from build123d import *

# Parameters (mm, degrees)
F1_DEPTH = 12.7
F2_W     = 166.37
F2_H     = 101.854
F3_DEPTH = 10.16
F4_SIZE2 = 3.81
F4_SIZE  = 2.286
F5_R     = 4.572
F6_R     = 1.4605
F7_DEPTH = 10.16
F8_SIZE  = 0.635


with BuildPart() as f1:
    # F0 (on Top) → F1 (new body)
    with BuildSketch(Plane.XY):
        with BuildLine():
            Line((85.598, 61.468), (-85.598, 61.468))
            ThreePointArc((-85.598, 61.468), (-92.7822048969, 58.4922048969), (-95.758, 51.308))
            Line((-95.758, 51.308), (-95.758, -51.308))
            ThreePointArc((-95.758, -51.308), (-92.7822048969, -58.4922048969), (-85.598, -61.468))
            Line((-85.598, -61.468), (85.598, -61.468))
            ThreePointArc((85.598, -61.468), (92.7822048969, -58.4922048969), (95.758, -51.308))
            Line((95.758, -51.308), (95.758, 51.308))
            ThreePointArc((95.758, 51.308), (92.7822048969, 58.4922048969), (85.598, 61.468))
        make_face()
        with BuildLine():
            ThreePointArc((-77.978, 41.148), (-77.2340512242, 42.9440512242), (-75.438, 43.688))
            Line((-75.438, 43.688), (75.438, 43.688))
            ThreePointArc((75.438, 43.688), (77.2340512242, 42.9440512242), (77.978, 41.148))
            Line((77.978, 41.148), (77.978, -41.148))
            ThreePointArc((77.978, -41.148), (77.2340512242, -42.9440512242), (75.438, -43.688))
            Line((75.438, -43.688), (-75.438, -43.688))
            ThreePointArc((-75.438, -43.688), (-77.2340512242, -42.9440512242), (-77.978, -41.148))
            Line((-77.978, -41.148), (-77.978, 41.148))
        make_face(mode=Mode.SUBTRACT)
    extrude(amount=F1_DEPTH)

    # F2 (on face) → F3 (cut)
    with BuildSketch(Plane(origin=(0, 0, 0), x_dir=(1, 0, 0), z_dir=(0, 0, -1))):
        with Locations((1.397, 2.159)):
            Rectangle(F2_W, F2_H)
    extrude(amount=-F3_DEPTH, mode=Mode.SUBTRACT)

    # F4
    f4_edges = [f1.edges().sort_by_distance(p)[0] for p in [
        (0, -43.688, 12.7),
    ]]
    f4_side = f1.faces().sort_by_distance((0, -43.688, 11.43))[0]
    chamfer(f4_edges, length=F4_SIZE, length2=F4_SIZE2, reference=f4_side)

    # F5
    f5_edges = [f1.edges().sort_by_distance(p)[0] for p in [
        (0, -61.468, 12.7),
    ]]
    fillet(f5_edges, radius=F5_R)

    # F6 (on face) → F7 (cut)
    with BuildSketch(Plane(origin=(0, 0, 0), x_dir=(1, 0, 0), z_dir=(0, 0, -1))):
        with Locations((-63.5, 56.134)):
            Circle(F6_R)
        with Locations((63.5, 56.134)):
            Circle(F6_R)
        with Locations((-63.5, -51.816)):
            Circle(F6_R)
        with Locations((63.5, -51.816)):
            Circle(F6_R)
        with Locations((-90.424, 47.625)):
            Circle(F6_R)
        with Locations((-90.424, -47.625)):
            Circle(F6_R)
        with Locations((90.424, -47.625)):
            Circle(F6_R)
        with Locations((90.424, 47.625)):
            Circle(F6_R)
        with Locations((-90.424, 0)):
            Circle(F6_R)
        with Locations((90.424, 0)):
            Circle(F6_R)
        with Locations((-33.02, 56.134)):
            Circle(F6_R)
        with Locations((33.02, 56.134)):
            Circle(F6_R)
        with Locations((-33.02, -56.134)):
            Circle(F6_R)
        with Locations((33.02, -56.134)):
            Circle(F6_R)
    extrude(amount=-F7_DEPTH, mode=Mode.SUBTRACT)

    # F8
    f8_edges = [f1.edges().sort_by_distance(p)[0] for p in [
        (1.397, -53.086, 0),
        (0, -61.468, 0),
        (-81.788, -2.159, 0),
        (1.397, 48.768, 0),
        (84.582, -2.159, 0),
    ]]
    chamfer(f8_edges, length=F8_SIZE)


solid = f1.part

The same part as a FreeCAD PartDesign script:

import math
import FreeCAD as App
import Part
import Sketcher

V = App.Vector
Q = App.Units.Quantity


def edges_at(feature, points):
    """Names of the edges that pass closest to the given points."""
    edges = feature.Shape.Edges
    near = lambda p: min(range(len(edges)), key=lambda i: edges[i].distToShape(Part.Vertex(*p))[0])
    return sorted({f"Edge{near(p) + 1}" for p in points})

doc = App.newDocument("Part")
params = doc.addObject("Spreadsheet::Sheet", "Params")
for row, (alias, value) in enumerate([
    ("sketch1_radius", "0.4 in"),
    ("sketch1_radius2", "0.1 in"),
    ("sketch1_width", "6.74 in"),
    ("sketch1_width2", "5.94 in"),
    ("sketch1_height", "4.04 in"),
    ("pad1_length", "0.5 in"),
    ("sketch2_width", "6.55 in"),
    ("sketch2_height", "4.01 in"),
    ("pocket1_length", "0.4 in"),
    ("chamfer_size", "0.09 in"),
    ("chamfer_size2", "0.15 in"),
    ("fillet_radius", "0.18 in"),
    ("sketch3_diameter", "0.115 in"),
    ("pocket2_length", "0.4 in"),
    ("chamfer2_size", "0.025 in"),
], start=1):
    params.set(f"A{row}", alias)
    params.set(f"B{row}", "=" + value)
    params.setAlias(f"B{row}", alias)

body = doc.addObject("PartDesign::Body", "Body")

# Sketch on XY plane
sketch1 = doc.addObject("Sketcher::SketchObject", "Sketch")
body.addObject(sketch1)
sketch1.AttachmentSupport = (doc.XY_Plane, [""])
sketch1.MapMode = "FlatFace"
sketch1.addGeometry([
    Part.LineSegment(V(85.6, 61.5, 0), V(-85.6, 61.5, 0)),  # 0
    Part.ArcOfCircle(Part.Circle(V(-85.6, 51.3, 0), V(0, 0, 1), 10.2), math.radians(90), math.radians(180)),  # 1
    Part.LineSegment(V(-95.8, 51.3, 0), V(-95.8, -51.3, 0)),  # 2
    Part.ArcOfCircle(Part.Circle(V(-85.6, -51.3, 0), V(0, 0, 1), 10.2), math.radians(180), math.radians(270)),  # 3
    Part.LineSegment(V(-85.6, -61.5, 0), V(85.6, -61.5, 0)),  # 4
    Part.ArcOfCircle(Part.Circle(V(85.6, -51.3, 0), V(0, 0, 1), 10.2), math.radians(-90), math.radians(0)),  # 5
    Part.LineSegment(V(95.8, -51.3, 0), V(95.8, 51.3, 0)),  # 6
    Part.ArcOfCircle(Part.Circle(V(85.6, 51.3, 0), V(0, 0, 1), 10.2), math.radians(0), math.radians(90)),  # 7
    Part.LineSegment(V(-78, -41.1, 0), V(-78, 41.1, 0)),  # 8
    Part.ArcOfCircle(Part.Circle(V(-75.4, 41.1, 0), V(0, 0, 1), 2.5), math.radians(90), math.radians(180)),  # 9
    Part.LineSegment(V(-75.4, 43.7, 0), V(75.4, 43.7, 0)),  # 10
    Part.ArcOfCircle(Part.Circle(V(75.4, 41.1, 0), V(0, 0, 1), 2.5), math.radians(0), math.radians(90)),  # 11
    Part.LineSegment(V(78, 41.1, 0), V(78, -41.1, 0)),  # 12
    Part.ArcOfCircle(Part.Circle(V(75.4, -41.1, 0), V(0, 0, 1), 2.5), math.radians(-90), math.radians(0)),  # 13
    Part.LineSegment(V(75.4, -43.7, 0), V(-75.4, -43.7, 0)),  # 14
    Part.ArcOfCircle(Part.Circle(V(-75.4, -41.1, 0), V(0, 0, 1), 2.5), math.radians(180), math.radians(270)),  # 15
], False)
sketch1.addConstraint([
    Sketcher.Constraint("Tangent", 0, 2, 1, 1),
    Sketcher.Constraint("Tangent", 1, 2, 2, 1),
    Sketcher.Constraint("Tangent", 2, 2, 3, 1),
    Sketcher.Constraint("Tangent", 3, 2, 4, 1),
    Sketcher.Constraint("Tangent", 4, 2, 5, 1),
    Sketcher.Constraint("Tangent", 5, 2, 6, 1),
    Sketcher.Constraint("Tangent", 6, 2, 7, 1),
    Sketcher.Constraint("Tangent", 7, 2, 0, 1),
    Sketcher.Constraint("Tangent", 8, 2, 9, 2),
    Sketcher.Constraint("Tangent", 9, 1, 10, 1),
    Sketcher.Constraint("Tangent", 10, 2, 11, 2),
    Sketcher.Constraint("Tangent", 11, 1, 12, 1),
    Sketcher.Constraint("Tangent", 12, 2, 13, 2),
    Sketcher.Constraint("Tangent", 13, 1, 14, 1),
    Sketcher.Constraint("Tangent", 14, 2, 15, 2),
    Sketcher.Constraint("Tangent", 15, 1, 8, 1),
    Sketcher.Constraint("Horizontal", 0),
    Sketcher.Constraint("Vertical", 2),
    Sketcher.Constraint("Horizontal", 4),
    Sketcher.Constraint("Vertical", 6),
    Sketcher.Constraint("Vertical", 8),
    Sketcher.Constraint("Horizontal", 10),
    Sketcher.Constraint("Vertical", 12),
    Sketcher.Constraint("Horizontal", 14),
    Sketcher.Constraint("Equal", 1, 3),
    Sketcher.Constraint("Equal", 3, 5),
    Sketcher.Constraint("Equal", 5, 7),
    Sketcher.Constraint("Equal", 9, 11),
    Sketcher.Constraint("Equal", 11, 13),
    Sketcher.Constraint("Equal", 13, 15),
    Sketcher.Constraint("Symmetric", 1, 3, 5, 3, -1, 1),
    Sketcher.Constraint("Symmetric", 9, 3, 13, 3, -1, 1),
    Sketcher.Constraint("Radius", 1, Q("0.4 in")),
    Sketcher.Constraint("Radius", 9, Q("0.1 in")),
    Sketcher.Constraint("DistanceX", 0, 2, 0, 1, Q("6.74 in")),
    Sketcher.Constraint("DistanceX", 10, 1, 10, 2, Q("5.94 in")),
    Sketcher.Constraint("DistanceY", 2, 2, 2, 1, Q("4.04 in")),
    Sketcher.Constraint("DistanceY", 8, 1, 8, 2, Q("3.24 in")),
])
sketch1.setExpression("Constraints[32]", "Params.sketch1_radius")
sketch1.setExpression("Constraints[33]", "Params.sketch1_radius2")
sketch1.setExpression("Constraints[34]", "Params.sketch1_width")
sketch1.setExpression("Constraints[35]", "Params.sketch1_width2")
sketch1.setExpression("Constraints[36]", "Params.sketch1_height")
pad1 = doc.addObject("PartDesign::Pad", "Pad")
body.addObject(pad1)
pad1.Profile = sketch1
pad1.setExpression("Length", "Params.pad1_length")

# Sketch on XY plane
sketch2 = doc.addObject("Sketcher::SketchObject", "Sketch001")
body.addObject(sketch2)
sketch2.AttachmentSupport = (doc.XY_Plane, [""])
sketch2.MapMode = "FlatFace"
sketch2.addGeometry([
    Part.LineSegment(V(-82, -53, 0), V(-82, 49, 0)),
    Part.LineSegment(V(-82, 49, 0), V(85, 49, 0)),
    Part.LineSegment(V(85, 49, 0), V(85, -53, 0)),
    Part.LineSegment(V(85, -53, 0), V(-82, -53, 0)),
], False)
sketch2.addConstraint([
    Sketcher.Constraint("Coincident", 0, 2, 1, 1),
    Sketcher.Constraint("Coincident", 1, 2, 2, 1),
    Sketcher.Constraint("Coincident", 2, 2, 3, 1),
    Sketcher.Constraint("Coincident", 3, 2, 0, 1),
    Sketcher.Constraint("Vertical", 0),
    Sketcher.Constraint("Horizontal", 1),
    Sketcher.Constraint("Vertical", 2),
    Sketcher.Constraint("Horizontal", 3),
    Sketcher.Constraint("DistanceX", 1, 1, 1, 2, Q("6.55 in")),
    Sketcher.Constraint("DistanceY", 0, 1, 0, 2, Q("4.01 in")),
    Sketcher.Constraint("DistanceX", 0, 2, -1, 1, Q("3.22 in")),
    Sketcher.Constraint("DistanceY", -1, 1, 0, 2, Q("1.92 in")),
])
sketch2.setExpression("Constraints[8]", "Params.sketch2_width")
sketch2.setExpression("Constraints[9]", "Params.sketch2_height")
pocket1 = doc.addObject("PartDesign::Pocket", "Pocket")
body.addObject(pocket1)
pocket1.Profile = sketch2
pocket1.setExpression("Length", "Params.pocket1_length")
pocket1.Reversed = True
doc.recompute()

chamfer = doc.addObject("PartDesign::Chamfer", "Chamfer")
body.addObject(chamfer)
chamfer.Base = (pocket1, edges_at(pocket1, [(0, -43.688, 12.7)]))
chamfer.ChamferType = "Two distances"
chamfer.setExpression("Size", "Params.chamfer_size")
chamfer.setExpression("Size2", "Params.chamfer_size2")
chamfer.FlipDirection = True
doc.recompute()

fillet = doc.addObject("PartDesign::Fillet", "Fillet")
body.addObject(fillet)
fillet.Base = (chamfer, edges_at(chamfer, [(0, -61.468, 12.7)]))
fillet.setExpression("Radius", "Params.fillet_radius")

# Sketch on XY plane
sketch3 = doc.addObject("Sketcher::SketchObject", "Sketch002")
body.addObject(sketch3)
sketch3.AttachmentSupport = (doc.XY_Plane, [""])
sketch3.MapMode = "FlatFace"
sketch3.addGeometry([
    Part.Circle(V(-63.5, -56.1, 0), V(0, 0, 1), 1.5),  # 0
    Part.Circle(V(63.5, -56.1, 0), V(0, 0, 1), 1.5),  # 1
    Part.Circle(V(-63.5, 51.8, 0), V(0, 0, 1), 1.5),  # 2
    Part.Circle(V(63.5, 51.8, 0), V(0, 0, 1), 1.5),  # 3
    Part.Circle(V(-90.4, -47.6, 0), V(0, 0, 1), 1.5),  # 4
    Part.Circle(V(-90.4, 47.6, 0), V(0, 0, 1), 1.5),  # 5
    Part.Circle(V(90.4, 47.6, 0), V(0, 0, 1), 1.5),  # 6
    Part.Circle(V(90.4, -47.6, 0), V(0, 0, 1), 1.5),  # 7
    Part.Circle(V(-90.4, 0, 0), V(0, 0, 1), 1.5),  # 8
    Part.Circle(V(90.4, 0, 0), V(0, 0, 1), 1.5),  # 9
    Part.Circle(V(-33, -56.1, 0), V(0, 0, 1), 1.5),  # 10
    Part.Circle(V(33, -56.1, 0), V(0, 0, 1), 1.5),  # 11
    Part.Circle(V(-33, 56.1, 0), V(0, 0, 1), 1.5),  # 12
    Part.Circle(V(33, 56.1, 0), V(0, 0, 1), 1.5),  # 13
], False)
sketch3.addConstraint([
    Sketcher.Constraint("Equal", 0, 1),
    Sketcher.Constraint("Equal", 1, 2),
    Sketcher.Constraint("Equal", 2, 3),
    Sketcher.Constraint("Equal", 3, 4),
    Sketcher.Constraint("Equal", 4, 5),
    Sketcher.Constraint("Equal", 5, 6),
    Sketcher.Constraint("Equal", 6, 7),
    Sketcher.Constraint("Equal", 7, 8),
    Sketcher.Constraint("Equal", 8, 9),
    Sketcher.Constraint("Equal", 9, 10),
    Sketcher.Constraint("Equal", 10, 11),
    Sketcher.Constraint("Equal", 11, 12),
    Sketcher.Constraint("Equal", 12, 13),
    Sketcher.Constraint("Symmetric", 4, 3, 6, 3, -1, 1),
    Sketcher.Constraint("Symmetric", 5, 3, 7, 3, -1, 1),
    Sketcher.Constraint("Symmetric", 8, 3, 9, 3, -1, 1),
    Sketcher.Constraint("Symmetric", 11, 3, 12, 3, -1, 1),
    Sketcher.Constraint("Symmetric", 10, 3, 13, 3, -1, 1),
    Sketcher.Constraint("Symmetric", 0, 3, 1, 3, -2),
    Sketcher.Constraint("Symmetric", 2, 3, 3, 3, -2),
    Sketcher.Constraint("Symmetric", 5, 3, 6, 3, -2),
    Sketcher.Constraint("Symmetric", 10, 3, 11, 3, -2),
    Sketcher.Constraint("PointOnObject", 8, 3, -1),
    Sketcher.Constraint("Horizontal", 1, 3, 10, 3),
    Sketcher.Constraint("Vertical", 0, 3, 2, 3),
    Sketcher.Constraint("Vertical", 5, 3, 8, 3),
    Sketcher.Constraint("Diameter", 0, Q("0.115 in")),
    Sketcher.Constraint("DistanceX", 0, 3, 1, 3, Q("5 in")),
    Sketcher.Constraint("DistanceX", 10, 3, -1, 1, Q("1.3 in")),
    Sketcher.Constraint("DistanceY", 0, 3, -1, 1, Q("2.21 in")),
    Sketcher.Constraint("DistanceY", -1, 1, 2, 3, Q("2.04 in")),
    Sketcher.Constraint("DistanceX", 4, 3, -1, 1, Q("3.56 in")),
    Sketcher.Constraint("DistanceY", 4, 3, 5, 3, Q("3.75 in")),
])
sketch3.setExpression("Constraints[26]", "Params.sketch3_diameter")
pocket2 = doc.addObject("PartDesign::Pocket", "Pocket001")
body.addObject(pocket2)
pocket2.Profile = sketch3
pocket2.setExpression("Length", "Params.pocket2_length")
pocket2.Reversed = True
doc.recompute()

chamfer2 = doc.addObject("PartDesign::Chamfer", "Chamfer001")
body.addObject(chamfer2)
chamfer2.Base = (pocket2, edges_at(pocket2, [
    (1.397, -53.086, 0),
    (0, -61.468, 0),
    (-81.788, -2.159, 0),
    (1.397, 48.768, 0),
    (84.582, -2.159, 0),
]))
chamfer2.setExpression("Size", "Params.chamfer2_size")

doc.recompute()
